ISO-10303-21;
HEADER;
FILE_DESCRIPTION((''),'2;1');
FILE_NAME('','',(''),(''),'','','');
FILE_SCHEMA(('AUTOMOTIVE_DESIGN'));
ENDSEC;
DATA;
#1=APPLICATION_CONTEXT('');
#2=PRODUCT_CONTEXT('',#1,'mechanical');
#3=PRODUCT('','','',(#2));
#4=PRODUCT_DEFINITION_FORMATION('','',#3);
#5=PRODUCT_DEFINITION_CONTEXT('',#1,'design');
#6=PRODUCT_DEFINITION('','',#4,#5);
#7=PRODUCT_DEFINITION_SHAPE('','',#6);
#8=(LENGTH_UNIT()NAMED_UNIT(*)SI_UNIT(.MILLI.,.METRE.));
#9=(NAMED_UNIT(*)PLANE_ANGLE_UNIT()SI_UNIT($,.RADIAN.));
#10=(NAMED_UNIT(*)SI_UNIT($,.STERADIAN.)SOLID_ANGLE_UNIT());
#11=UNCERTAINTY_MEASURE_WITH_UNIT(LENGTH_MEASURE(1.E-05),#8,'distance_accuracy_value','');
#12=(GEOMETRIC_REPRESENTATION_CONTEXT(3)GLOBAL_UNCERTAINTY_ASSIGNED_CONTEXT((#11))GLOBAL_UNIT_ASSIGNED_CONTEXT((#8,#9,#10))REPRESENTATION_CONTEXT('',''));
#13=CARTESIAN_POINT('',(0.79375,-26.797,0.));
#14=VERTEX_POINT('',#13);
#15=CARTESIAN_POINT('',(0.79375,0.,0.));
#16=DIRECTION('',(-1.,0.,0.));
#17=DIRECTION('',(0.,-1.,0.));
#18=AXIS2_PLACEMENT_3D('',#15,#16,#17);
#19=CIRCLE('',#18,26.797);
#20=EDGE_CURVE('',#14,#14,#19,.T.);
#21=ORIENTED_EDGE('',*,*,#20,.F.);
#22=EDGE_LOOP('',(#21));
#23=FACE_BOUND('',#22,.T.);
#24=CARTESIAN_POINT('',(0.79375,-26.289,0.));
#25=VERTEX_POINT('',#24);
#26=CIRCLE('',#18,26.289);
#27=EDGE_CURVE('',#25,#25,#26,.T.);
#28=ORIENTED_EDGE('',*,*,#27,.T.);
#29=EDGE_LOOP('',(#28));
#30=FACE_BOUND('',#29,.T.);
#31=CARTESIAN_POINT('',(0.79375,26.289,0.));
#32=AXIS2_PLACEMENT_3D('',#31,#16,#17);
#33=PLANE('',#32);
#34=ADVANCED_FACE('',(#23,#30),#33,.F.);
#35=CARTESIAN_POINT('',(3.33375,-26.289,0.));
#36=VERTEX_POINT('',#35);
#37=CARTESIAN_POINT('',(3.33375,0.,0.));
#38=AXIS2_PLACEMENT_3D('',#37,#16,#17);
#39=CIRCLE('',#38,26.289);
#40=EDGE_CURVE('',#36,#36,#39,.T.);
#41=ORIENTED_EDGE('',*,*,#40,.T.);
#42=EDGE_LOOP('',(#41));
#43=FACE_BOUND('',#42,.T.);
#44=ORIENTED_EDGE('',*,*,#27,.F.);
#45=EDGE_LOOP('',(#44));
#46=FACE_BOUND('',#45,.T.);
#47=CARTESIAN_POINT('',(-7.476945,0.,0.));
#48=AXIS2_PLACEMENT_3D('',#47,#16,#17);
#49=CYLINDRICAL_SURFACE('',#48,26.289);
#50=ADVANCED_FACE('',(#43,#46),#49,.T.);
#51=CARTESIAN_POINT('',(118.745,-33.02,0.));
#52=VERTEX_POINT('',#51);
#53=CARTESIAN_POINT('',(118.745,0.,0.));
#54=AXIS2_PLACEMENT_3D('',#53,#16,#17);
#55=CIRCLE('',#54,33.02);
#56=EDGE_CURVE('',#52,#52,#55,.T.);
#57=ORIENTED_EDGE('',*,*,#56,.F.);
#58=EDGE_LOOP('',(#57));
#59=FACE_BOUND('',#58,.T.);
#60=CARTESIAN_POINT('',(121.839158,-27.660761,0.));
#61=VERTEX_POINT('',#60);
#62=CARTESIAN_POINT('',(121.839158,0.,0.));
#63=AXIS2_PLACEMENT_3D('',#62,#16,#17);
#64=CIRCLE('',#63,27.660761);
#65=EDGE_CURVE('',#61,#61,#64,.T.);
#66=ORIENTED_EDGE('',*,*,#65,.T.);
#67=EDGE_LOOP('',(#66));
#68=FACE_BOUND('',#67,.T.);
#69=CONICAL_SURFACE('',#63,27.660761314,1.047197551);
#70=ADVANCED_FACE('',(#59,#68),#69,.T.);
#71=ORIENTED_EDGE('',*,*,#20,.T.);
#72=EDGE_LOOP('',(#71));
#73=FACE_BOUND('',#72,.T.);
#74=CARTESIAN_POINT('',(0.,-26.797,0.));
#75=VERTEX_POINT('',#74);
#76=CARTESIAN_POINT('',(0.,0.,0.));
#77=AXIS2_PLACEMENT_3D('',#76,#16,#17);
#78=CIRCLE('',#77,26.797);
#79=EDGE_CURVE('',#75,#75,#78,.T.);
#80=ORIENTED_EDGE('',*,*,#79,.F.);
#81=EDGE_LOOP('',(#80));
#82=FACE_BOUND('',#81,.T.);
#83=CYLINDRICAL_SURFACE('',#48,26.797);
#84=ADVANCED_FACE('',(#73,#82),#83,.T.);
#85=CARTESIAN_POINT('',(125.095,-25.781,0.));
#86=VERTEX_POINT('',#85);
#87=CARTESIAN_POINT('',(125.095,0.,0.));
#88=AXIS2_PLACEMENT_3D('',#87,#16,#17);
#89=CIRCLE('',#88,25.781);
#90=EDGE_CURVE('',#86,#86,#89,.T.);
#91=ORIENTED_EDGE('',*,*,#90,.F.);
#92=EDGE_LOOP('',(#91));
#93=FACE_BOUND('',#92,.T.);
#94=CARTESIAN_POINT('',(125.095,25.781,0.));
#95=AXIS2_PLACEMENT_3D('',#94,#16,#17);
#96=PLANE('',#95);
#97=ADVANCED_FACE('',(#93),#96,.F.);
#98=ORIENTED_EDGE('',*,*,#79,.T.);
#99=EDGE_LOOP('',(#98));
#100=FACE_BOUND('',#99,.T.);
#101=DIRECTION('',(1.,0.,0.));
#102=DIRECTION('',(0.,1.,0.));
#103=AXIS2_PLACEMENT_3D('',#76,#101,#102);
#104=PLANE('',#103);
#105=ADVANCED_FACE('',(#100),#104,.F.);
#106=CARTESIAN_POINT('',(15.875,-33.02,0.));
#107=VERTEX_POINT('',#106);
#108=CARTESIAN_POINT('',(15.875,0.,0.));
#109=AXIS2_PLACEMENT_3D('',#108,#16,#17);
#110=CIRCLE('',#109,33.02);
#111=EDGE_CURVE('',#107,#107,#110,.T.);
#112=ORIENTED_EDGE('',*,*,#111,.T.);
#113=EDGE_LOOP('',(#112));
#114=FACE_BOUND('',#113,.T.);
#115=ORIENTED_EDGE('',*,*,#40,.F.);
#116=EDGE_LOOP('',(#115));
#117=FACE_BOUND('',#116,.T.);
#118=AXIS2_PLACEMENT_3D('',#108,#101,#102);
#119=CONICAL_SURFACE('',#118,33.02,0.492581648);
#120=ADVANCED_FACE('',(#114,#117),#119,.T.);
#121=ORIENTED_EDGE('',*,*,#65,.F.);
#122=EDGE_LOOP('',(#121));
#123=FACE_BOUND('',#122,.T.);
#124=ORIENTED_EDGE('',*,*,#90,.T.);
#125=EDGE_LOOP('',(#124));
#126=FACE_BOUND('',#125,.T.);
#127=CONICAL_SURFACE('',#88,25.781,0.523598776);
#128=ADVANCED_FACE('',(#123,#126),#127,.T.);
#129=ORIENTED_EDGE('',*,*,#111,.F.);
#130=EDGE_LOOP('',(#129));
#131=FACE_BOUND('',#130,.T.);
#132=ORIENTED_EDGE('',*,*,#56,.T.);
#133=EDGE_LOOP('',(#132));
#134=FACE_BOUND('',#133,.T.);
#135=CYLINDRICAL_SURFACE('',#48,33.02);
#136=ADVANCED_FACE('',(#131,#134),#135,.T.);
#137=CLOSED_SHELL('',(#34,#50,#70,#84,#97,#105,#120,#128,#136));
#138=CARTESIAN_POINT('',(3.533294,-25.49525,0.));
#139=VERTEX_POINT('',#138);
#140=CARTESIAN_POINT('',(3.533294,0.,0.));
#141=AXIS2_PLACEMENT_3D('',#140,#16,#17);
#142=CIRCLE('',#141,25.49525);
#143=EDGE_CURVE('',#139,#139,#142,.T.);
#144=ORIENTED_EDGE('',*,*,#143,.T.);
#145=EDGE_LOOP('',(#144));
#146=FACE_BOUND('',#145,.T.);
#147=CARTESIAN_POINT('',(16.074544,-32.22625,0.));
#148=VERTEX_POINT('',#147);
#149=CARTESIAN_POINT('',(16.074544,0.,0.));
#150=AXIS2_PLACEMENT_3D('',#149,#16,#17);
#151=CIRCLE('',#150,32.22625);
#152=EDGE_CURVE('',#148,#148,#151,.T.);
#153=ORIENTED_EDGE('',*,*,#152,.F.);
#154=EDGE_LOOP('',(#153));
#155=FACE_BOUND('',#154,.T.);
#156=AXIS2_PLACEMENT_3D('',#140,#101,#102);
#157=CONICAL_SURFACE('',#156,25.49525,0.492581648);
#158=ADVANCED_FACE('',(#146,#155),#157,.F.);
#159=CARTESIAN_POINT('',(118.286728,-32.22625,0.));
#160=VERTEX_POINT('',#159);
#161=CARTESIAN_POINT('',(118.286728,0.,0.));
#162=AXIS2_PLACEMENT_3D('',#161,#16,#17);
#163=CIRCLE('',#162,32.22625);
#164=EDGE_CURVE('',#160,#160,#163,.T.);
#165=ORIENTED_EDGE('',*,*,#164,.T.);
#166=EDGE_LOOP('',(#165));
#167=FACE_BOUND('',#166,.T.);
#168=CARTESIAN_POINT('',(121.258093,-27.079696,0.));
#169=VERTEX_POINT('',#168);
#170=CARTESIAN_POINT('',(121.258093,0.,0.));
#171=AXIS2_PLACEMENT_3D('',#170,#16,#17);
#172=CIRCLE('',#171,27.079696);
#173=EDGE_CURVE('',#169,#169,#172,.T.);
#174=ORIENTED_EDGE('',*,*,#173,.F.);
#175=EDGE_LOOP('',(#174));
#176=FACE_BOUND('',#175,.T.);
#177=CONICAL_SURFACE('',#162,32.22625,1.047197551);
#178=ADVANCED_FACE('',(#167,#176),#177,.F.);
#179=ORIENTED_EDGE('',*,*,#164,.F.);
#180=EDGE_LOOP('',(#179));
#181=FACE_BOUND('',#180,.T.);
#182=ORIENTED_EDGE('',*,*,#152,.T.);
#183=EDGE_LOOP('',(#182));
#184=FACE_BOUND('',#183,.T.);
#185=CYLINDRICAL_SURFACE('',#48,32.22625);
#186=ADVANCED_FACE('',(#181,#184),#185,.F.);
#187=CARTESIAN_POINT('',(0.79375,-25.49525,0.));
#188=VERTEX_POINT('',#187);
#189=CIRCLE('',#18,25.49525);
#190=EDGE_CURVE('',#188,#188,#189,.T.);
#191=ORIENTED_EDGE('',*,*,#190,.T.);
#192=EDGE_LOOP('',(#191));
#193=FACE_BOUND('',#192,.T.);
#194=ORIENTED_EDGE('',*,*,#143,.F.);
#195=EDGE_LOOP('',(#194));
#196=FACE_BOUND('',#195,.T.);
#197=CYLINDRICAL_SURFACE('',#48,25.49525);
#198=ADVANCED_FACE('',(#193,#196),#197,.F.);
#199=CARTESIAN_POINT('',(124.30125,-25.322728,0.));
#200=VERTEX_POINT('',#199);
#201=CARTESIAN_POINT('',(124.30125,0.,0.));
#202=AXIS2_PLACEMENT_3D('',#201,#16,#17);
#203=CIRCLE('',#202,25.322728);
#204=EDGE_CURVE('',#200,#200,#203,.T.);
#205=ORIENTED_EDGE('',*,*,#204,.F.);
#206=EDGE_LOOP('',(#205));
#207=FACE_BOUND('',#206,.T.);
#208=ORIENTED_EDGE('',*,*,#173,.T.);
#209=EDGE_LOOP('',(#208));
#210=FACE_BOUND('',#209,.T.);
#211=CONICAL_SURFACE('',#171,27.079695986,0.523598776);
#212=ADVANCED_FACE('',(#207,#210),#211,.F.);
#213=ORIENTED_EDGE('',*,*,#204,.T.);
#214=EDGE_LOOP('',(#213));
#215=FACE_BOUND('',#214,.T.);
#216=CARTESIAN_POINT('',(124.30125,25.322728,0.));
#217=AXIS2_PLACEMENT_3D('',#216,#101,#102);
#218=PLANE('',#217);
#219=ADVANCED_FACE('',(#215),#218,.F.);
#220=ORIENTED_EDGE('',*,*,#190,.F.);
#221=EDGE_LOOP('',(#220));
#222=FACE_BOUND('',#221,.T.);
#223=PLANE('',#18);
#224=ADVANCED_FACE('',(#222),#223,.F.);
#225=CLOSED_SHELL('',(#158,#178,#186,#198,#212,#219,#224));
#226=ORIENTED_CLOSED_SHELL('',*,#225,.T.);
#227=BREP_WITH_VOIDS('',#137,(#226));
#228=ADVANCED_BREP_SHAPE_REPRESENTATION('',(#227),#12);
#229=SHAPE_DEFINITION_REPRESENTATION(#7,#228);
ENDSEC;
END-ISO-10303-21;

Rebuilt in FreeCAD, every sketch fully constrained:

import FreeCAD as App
import Part
import Sketcher

V = App.Vector
Q = App.Units.Quantity

doc = App.newDocument("Part")
body = doc.addObject("PartDesign::Body", "Body")

# Sketch on XY plane
sketch1 = body.newObject("Sketcher::SketchObject", "Sketch")
sketch1.AttachmentSupport = (doc.getObject("XY_Plane"), [""])
sketch1.MapMode = "FlatFace"
sketch1.addGeometry([
    Part.LineSegment(V(0, 26.8, 0), V(0, 0, 0)),  # 0
    Part.LineSegment(V(0, 0, 0), V(0.8, 0, 0)),  # 1
    Part.LineSegment(V(0.8, 0, 0), V(0.8, 25.5, 0)),  # 2
    Part.LineSegment(V(0.8, 25.5, 0), V(3.5, 25.5, 0)),  # 3
    Part.LineSegment(V(3.5, 25.5, 0), V(16.1, 32.2, 0)),  # 4
    Part.LineSegment(V(16.1, 32.2, 0), V(118.3, 32.2, 0)),  # 5
    Part.LineSegment(V(118.3, 32.2, 0), V(121.3, 27.1, 0)),  # 6
    Part.LineSegment(V(121.3, 27.1, 0), V(124.3, 25.3, 0)),  # 7
    Part.LineSegment(V(124.3, 25.3, 0), V(124.3, 0, 0)),  # 8
    Part.LineSegment(V(124.3, 0, 0), V(125.1, 0, 0)),  # 9
    Part.LineSegment(V(125.1, 0, 0), V(125.1, 25.8, 0)),  # 10
    Part.LineSegment(V(125.1, 25.8, 0), V(121.8, 27.7, 0)),  # 11
    Part.LineSegment(V(121.8, 27.7, 0), V(118.7, 33, 0)),  # 12
    Part.LineSegment(V(118.7, 33, 0), V(15.9, 33, 0)),  # 13
    Part.LineSegment(V(15.9, 33, 0), V(3.3, 26.3, 0)),  # 14
    Part.LineSegment(V(3.3, 26.3, 0), V(0.8, 26.3, 0)),  # 15
    Part.LineSegment(V(0.8, 26.3, 0), V(0.8, 26.8, 0)),  # 16
    Part.LineSegment(V(0.8, 26.8, 0), V(0, 26.8, 0)),  # 17
], False)
sketch1.addConstraint([
    Sketcher.Constraint("Coincident", 0, 2, 1, 1),
    Sketcher.Constraint("Coincident", 1, 2, 2, 1),
    Sketcher.Constraint("Coincident", 2, 2, 3, 1),
    Sketcher.Constraint("Coincident", 3, 2, 4, 1),
    Sketcher.Constraint("Coincident", 4, 2, 5, 1),
    Sketcher.Constraint("Coincident", 5, 2, 6, 1),
    Sketcher.Constraint("Coincident", 6, 2, 7, 1),
    Sketcher.Constraint("Coincident", 7, 2, 8, 1),
    Sketcher.Constraint("Coincident", 8, 2, 9, 1),
    Sketcher.Constraint("Coincident", 9, 2, 10, 1),
    Sketcher.Constraint("Coincident", 10, 2, 11, 1),
    Sketcher.Constraint("Coincident", 11, 2, 12, 1),
    Sketcher.Constraint("Coincident", 12, 2, 13, 1),
    Sketcher.Constraint("Coincident", 13, 2, 14, 1),
    Sketcher.Constraint("Coincident", 14, 2, 15, 1),
    Sketcher.Constraint("Coincident", 15, 2, 16, 1),
    Sketcher.Constraint("Coincident", 16, 2, 17, 1),
    Sketcher.Constraint("Coincident", 17, 2, 0, 1),
    Sketcher.Constraint("Vertical", 0),
    Sketcher.Constraint("Horizontal", 1),
    Sketcher.Constraint("Vertical", 2),
    Sketcher.Constraint("Horizontal", 3),
    Sketcher.Constraint("Horizontal", 5),
    Sketcher.Constraint("Vertical", 8),
    Sketcher.Constraint("Horizontal", 9),
    Sketcher.Constraint("Vertical", 10),
    Sketcher.Constraint("Horizontal", 13),
    Sketcher.Constraint("Horizontal", 15),
    Sketcher.Constraint("Vertical", 16),
    Sketcher.Constraint("Horizontal", 17),
    Sketcher.Constraint("Coincident", 0, 2, -1, 1),
    Sketcher.Constraint("PointOnObject", 8, 2, -1),
    Sketcher.Constraint("Parallel", 7, 11),
    Sketcher.Constraint("Parallel", 6, 12),
    Sketcher.Constraint("Parallel", 4, 14),
    Sketcher.Constraint("Vertical", 2, 2, 15, 2),
    Sketcher.Constraint("Equal", 1, 9),
    Sketcher.Constraint("Equal", 4, 14),
    Sketcher.Constraint("DistanceX", 15, 2, 15, 1, Q("0.1 in")),
    Sketcher.Constraint("Angle", 6, Q("-60 deg")),
    Sketcher.Constraint("Angle", 7, Q("-30 deg")),
    Sketcher.Constraint("DistanceX", 13, 2, 13, 1, Q("4.05 in")),
    Sketcher.Constraint("DistanceY", 16, 1, 16, 2, Q("0.02 in")),
    Sketcher.Constraint("DistanceY", -1, 1, 12, 2, Q("1.3 in")),
    Sketcher.Constraint("DistanceX", 1, 1, 1, 2, Q("0.03125 in")),
    Sketcher.Constraint("DistanceY", 0, 2, 0, 1, Q("1.055 in")),
    Sketcher.Constraint("DistanceY", 10, 1, 10, 2, Q("1.015 in")),
    Sketcher.Constraint("DistanceX", 12, 2, 10, 2, Q("0.25 in")),
    Sketcher.Constraint("DistanceX", -1, 1, 9, 2, Q("4.925 in")),
    Sketcher.Constraint("DistanceY", 5, 2, 12, 2, Q("0.03125 in")),
    Sketcher.Constraint("DistanceY", 8, 2, 8, 1, 25.322728),
    Sketcher.Constraint("DistanceX", 3, 2, 6, 2, 117.724798),
    Sketcher.Constraint("Distance", 6, 5.942729),
])
revolution = body.newObject("PartDesign::Revolution", "Revolution")
revolution.Profile = sketch1
revolution.ReferenceAxis = (sketch1, ["H_Axis"])
revolution.Angle = 360

doc.recompute()
